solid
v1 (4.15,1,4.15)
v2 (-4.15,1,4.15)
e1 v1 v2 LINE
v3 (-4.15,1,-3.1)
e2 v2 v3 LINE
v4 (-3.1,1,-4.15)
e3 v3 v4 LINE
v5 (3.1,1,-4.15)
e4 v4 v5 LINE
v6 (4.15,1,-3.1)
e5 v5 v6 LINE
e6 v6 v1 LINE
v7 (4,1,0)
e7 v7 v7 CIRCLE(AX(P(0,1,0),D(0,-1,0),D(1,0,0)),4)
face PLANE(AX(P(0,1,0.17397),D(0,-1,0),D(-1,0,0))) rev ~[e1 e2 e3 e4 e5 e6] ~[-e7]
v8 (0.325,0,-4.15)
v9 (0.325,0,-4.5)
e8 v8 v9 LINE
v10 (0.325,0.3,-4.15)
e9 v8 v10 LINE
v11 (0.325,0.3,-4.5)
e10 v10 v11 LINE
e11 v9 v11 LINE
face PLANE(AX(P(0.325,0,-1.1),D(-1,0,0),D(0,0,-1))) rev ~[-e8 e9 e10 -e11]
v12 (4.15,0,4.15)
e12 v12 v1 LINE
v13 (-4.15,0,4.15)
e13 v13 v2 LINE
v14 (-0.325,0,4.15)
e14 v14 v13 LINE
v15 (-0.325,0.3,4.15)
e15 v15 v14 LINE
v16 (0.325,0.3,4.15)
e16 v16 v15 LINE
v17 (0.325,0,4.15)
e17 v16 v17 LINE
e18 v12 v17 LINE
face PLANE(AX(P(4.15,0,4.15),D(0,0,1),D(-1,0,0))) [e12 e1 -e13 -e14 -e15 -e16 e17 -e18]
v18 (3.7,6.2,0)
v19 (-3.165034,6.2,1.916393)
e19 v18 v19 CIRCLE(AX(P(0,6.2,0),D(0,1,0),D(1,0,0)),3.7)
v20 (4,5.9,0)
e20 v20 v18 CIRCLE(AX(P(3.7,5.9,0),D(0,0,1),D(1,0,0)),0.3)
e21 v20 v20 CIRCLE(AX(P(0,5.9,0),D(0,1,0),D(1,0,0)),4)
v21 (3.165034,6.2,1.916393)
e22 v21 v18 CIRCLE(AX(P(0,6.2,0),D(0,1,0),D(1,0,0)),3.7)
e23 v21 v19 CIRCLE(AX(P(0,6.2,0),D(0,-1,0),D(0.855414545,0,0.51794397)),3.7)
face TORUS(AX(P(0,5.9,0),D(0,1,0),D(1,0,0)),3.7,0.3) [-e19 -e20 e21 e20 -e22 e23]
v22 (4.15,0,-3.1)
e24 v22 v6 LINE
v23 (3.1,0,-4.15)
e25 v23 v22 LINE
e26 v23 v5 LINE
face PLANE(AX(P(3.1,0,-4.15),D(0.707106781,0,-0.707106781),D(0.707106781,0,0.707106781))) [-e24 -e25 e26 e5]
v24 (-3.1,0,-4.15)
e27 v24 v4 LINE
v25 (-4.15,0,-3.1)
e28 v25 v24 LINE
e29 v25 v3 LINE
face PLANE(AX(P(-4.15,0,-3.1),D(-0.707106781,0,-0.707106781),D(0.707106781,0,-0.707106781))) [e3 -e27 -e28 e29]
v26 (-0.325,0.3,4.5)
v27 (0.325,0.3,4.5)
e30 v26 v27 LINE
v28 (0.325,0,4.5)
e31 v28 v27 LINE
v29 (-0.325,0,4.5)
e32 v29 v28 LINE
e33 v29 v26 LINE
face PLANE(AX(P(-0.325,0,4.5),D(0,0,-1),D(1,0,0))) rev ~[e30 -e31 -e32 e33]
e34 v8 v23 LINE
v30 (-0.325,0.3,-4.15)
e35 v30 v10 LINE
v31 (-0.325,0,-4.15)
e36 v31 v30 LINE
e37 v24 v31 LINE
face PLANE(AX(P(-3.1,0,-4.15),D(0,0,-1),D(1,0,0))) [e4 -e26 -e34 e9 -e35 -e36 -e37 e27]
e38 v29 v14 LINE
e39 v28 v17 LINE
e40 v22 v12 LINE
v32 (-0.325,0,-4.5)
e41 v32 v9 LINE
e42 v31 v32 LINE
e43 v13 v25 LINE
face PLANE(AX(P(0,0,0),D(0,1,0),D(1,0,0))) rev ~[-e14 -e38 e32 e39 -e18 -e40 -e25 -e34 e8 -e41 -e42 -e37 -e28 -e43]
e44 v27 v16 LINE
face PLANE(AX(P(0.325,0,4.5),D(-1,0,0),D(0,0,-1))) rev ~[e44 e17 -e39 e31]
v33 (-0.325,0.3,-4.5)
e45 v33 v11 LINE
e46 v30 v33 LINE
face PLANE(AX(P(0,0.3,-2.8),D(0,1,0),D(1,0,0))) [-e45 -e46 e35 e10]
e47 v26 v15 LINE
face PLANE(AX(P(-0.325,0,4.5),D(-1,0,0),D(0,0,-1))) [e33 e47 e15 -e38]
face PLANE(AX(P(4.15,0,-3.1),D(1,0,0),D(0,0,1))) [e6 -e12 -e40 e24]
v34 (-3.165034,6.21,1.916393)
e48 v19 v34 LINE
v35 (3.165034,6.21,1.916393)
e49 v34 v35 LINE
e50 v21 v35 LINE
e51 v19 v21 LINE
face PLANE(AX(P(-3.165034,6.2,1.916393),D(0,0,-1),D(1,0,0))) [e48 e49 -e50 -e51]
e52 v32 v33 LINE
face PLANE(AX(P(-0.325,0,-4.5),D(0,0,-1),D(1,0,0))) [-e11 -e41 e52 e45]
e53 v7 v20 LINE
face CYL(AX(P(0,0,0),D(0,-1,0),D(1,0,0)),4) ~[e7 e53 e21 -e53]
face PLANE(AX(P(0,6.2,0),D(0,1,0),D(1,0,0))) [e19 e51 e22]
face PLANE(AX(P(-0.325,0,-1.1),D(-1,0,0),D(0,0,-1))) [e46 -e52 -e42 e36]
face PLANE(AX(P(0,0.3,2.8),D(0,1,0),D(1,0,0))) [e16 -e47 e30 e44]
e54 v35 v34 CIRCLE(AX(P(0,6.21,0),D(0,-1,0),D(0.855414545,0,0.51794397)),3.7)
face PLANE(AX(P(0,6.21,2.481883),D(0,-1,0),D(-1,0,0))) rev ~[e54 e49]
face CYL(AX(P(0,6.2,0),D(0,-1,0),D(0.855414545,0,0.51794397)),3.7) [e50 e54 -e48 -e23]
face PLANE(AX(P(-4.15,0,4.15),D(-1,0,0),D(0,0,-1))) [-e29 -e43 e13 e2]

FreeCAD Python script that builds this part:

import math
import FreeCAD as App
import Part
import Sketcher
from FreeCAD import Vector


def edges_at(feature, points):
    """Names of the edges that pass closest to the given points."""
    edges = feature.Shape.Edges
    near = lambda p: min(range(len(edges)), key=lambda i: edges[i].distToShape(Part.Vertex(*p))[0])
    return sorted({f"Edge{near(p) + 1}" for p in points})

doc = App.newDocument("Part")
params = doc.addObject("Spreadsheet::Sheet", "Params")
for row, (alias, value) in enumerate([
    ("sketch1_width", "8.3 mm"),
    ("sketch1_width2", "6.2 mm"),
    ("sketch1_height", "7.25 mm"),
    ("pad1_length", "1 mm"),
    ("sketch2_diameter", "8 mm"),
    ("pad2_length", "6.2 mm"),
    ("fillet_radius", "0.3 mm"),
    ("sketch3_height", "3.4 mm"),
    ("sketch3_width", "0.65 mm"),
    ("pad3_length", "0.3 mm"),
    ("sketch4_radius", "3.7 mm"),
    ("pad4_length", "0.01 mm"),
], start=1):
    params.set(f"A{row}", alias)
    params.set(f"B{row}", "=" + value)
    params.setAlias(f"B{row}", alias)

body = doc.addObject("PartDesign::Body", "Body")

# Sketch on XZ plane
sketch1 = body.newObject("Sketcher::SketchObject", "Sketch")
sketch1.AttachmentSupport = (doc.getObject("XZ_Plane"), [""])
sketch1.MapMode = "FlatFace"
sketch1.addGeometry([
    Part.LineSegment(Vector(-4.15, 4.15, 0), Vector(4.15, 4.15, 0)),  # 0
    Part.LineSegment(Vector(4.15, 4.15, 0), Vector(4.15, -3.1, 0)),  # 1
    Part.LineSegment(Vector(4.15, -3.1, 0), Vector(3.1, -4.15, 0)),  # 2
    Part.LineSegment(Vector(3.1, -4.15, 0), Vector(-3.1, -4.15, 0)),  # 3
    Part.LineSegment(Vector(-3.1, -4.15, 0), Vector(-4.15, -3.1, 0)),  # 4
    Part.LineSegment(Vector(-4.15, -3.1, 0), Vector(-4.15, 4.15, 0)),  # 5
], False)
sketch1.addConstraint([
    Sketcher.Constraint("Coincident", 0, 2, 1, 1),
    Sketcher.Constraint("Coincident", 1, 2, 2, 1),
    Sketcher.Constraint("Coincident", 2, 2, 3, 1),
    Sketcher.Constraint("Coincident", 3, 2, 4, 1),
    Sketcher.Constraint("Coincident", 4, 2, 5, 1),
    Sketcher.Constraint("Coincident", 5, 2, 0, 1),
    Sketcher.Constraint("Horizontal", 0),
    Sketcher.Constraint("Vertical", 1),
    Sketcher.Constraint("Horizontal", 3),
    Sketcher.Constraint("Vertical", 5),
    Sketcher.Constraint("Symmetric", 1, 2, 4, 2, -2),
    Sketcher.Constraint("Perpendicular", 2, 4),
    Sketcher.Constraint("Equal", 2, 4),
    Sketcher.Constraint("DistanceX", 0, 1, 0, 2, 8.3),
    Sketcher.Constraint("DistanceX", 3, 2, 3, 1, 6.2),
    Sketcher.Constraint("DistanceY", 1, 2, 1, 1, 7.25),
    Sketcher.Constraint("DistanceY", 1, 2, -1, 1, 3.1),
])
sketch1.setExpression("Constraints[13]", "Params.sketch1_width")
sketch1.setExpression("Constraints[14]", "Params.sketch1_width2")
sketch1.setExpression("Constraints[15]", "Params.sketch1_height")
pad1 = body.newObject("PartDesign::Pad", "Pad")
pad1.Profile = sketch1
pad1.setExpression("Length", "Params.pad1_length")
pad1.Reversed = True

# Sketch on XZ plane
sketch2 = body.newObject("Sketcher::SketchObject", "Sketch001")
sketch2.AttachmentSupport = (doc.getObject("XZ_Plane"), [""])
sketch2.MapMode = "FlatFace"
sketch2.addGeometry(Part.Circle(Vector(0, 0, 0), Vector(0, 0, 1), 4), False)
sketch2.addConstraint([
    Sketcher.Constraint("Coincident", 0, 3, -1, 1),
    Sketcher.Constraint("Diameter", 0, 8.0),
])
sketch2.setExpression("Constraints[1]", "Params.sketch2_diameter")
pad2 = body.newObject("PartDesign::Pad", "Pad001")
pad2.Profile = sketch2
pad2.setExpression("Length", "Params.pad2_length")
pad2.Reversed = True
doc.recompute()

fillet = body.newObject("PartDesign::Fillet", "Fillet")
fillet.Base = (pad2, edges_at(pad2, [(-4, 6.2, 0)]))
fillet.setExpression("Radius", "Params.fillet_radius")

# Sketch on XZ plane
sketch3 = body.newObject("Sketcher::SketchObject", "Sketch002")
sketch3.AttachmentSupport = (doc.getObject("XZ_Plane"), [""])
sketch3.MapMode = "FlatFace"
sketch3.addGeometry([
    Part.LineSegment(Vector(-0.325, -4.5, 0), Vector(-0.325, -1.1, 0)),  # 0
    Part.LineSegment(Vector(-0.325, -1.1, 0), Vector(0.325, -1.1, 0)),  # 1
    Part.LineSegment(Vector(0.325, -1.1, 0), Vector(0.325, -4.5, 0)),  # 2
    Part.LineSegment(Vector(0.325, -4.5, 0), Vector(-0.325, -4.5, 0)),  # 3
    Part.LineSegment(Vector(-0.325, 1.1, 0), Vector(-0.325, 4.5, 0)),  # 4
    Part.LineSegment(Vector(-0.325, 4.5, 0), Vector(0.325, 4.5, 0)),  # 5
    Part.LineSegment(Vector(0.325, 4.5, 0), Vector(0.325, 1.1, 0)),  # 6
    Part.LineSegment(Vector(0.325, 1.1, 0), Vector(-0.325, 1.1, 0)),  # 7
], False)
sketch3.addConstraint([
    Sketcher.Constraint("Coincident", 0, 2, 1, 1),
    Sketcher.Constraint("Coincident", 1, 2, 2, 1),
    Sketcher.Constraint("Coincident", 2, 2, 3, 1),
    Sketcher.Constraint("Coincident", 3, 2, 0, 1),
    Sketcher.Constraint("Coincident", 4, 2, 5, 1),
    Sketcher.Constraint("Coincident", 5, 2, 6, 1),
    Sketcher.Constraint("Coincident", 6, 2, 7, 1),
    Sketcher.Constraint("Coincident", 7, 2, 4, 1),
    Sketcher.Constraint("Vertical", 0),
    Sketcher.Constraint("Horizontal", 1),
    Sketcher.Constraint("Vertical", 2),
    Sketcher.Constraint("Horizontal", 3),
    Sketcher.Constraint("Vertical", 4),
    Sketcher.Constraint("Horizontal", 5),
    Sketcher.Constraint("Vertical", 6),
    Sketcher.Constraint("Horizontal", 7),
    Sketcher.Constraint("Symmetric", 2, 2, 4, 2, -1, 1),
    Sketcher.Constraint("Symmetric", 0, 2, 6, 2, -1, 1),
    Sketcher.Constraint("Vertical", 3, 2, 4, 2),
    Sketcher.Constraint("DistanceY", 0, 1, 0, 2, 3.4),
    Sketcher.Constraint("DistanceY", 3, 2, 4, 2, 9.0),
    Sketcher.Constraint("DistanceX", 1, 1, 1, 2, 0.65),
])
sketch3.setExpression("Constraints[19]", "Params.sketch3_height")
sketch3.setExpression("Constraints[21]", "Params.sketch3_width")
pad3 = body.newObject("PartDesign::Pad", "Pad002")
pad3.Profile = sketch3
pad3.setExpression("Length", "Params.pad3_length")
pad3.Reversed = True

# Sketch on XZ plane
sketch4 = body.newObject("Sketcher::SketchObject", "Sketch003")
sketch4.AttachmentSupport = (doc.getObject("XZ_Plane"), [""])
sketch4.MapMode = "FlatFace"
sketch4.AttachmentOffset = App.Placement(Vector(0, 0, -6.2), App.Rotation())
sketch4.addGeometry([
    Part.LineSegment(Vector(3.165034, 1.916393, 0), Vector(-3.165034, 1.916393, 0)),
    Part.ArcOfCircle(Part.Circle(Vector(0, 0, 0), Vector(0, 0, 1), 3.7), math.radians(31.194438), math.radians(148.805562)),
], False)
sketch4.addConstraint([
    Sketcher.Constraint("Coincident", 0, 1, 1, 1),
    Sketcher.Constraint("Coincident", 1, 2, 0, 2),
    Sketcher.Constraint("Horizontal", 0),
    Sketcher.Constraint("Coincident", 1, 3, -1, 1),
    Sketcher.Constraint("Radius", 1, 3.7),
    Sketcher.Constraint("DistanceX", 0, 2, 0, 1, 6.330068),
])
sketch4.setExpression("Constraints[4]", "Params.sketch4_radius")
pad4 = body.newObject("PartDesign::Pad", "Pad003")
pad4.Profile = sketch4
pad4.setExpression("Length", "Params.pad4_length")
pad4.Reversed = True

doc.recompute()
